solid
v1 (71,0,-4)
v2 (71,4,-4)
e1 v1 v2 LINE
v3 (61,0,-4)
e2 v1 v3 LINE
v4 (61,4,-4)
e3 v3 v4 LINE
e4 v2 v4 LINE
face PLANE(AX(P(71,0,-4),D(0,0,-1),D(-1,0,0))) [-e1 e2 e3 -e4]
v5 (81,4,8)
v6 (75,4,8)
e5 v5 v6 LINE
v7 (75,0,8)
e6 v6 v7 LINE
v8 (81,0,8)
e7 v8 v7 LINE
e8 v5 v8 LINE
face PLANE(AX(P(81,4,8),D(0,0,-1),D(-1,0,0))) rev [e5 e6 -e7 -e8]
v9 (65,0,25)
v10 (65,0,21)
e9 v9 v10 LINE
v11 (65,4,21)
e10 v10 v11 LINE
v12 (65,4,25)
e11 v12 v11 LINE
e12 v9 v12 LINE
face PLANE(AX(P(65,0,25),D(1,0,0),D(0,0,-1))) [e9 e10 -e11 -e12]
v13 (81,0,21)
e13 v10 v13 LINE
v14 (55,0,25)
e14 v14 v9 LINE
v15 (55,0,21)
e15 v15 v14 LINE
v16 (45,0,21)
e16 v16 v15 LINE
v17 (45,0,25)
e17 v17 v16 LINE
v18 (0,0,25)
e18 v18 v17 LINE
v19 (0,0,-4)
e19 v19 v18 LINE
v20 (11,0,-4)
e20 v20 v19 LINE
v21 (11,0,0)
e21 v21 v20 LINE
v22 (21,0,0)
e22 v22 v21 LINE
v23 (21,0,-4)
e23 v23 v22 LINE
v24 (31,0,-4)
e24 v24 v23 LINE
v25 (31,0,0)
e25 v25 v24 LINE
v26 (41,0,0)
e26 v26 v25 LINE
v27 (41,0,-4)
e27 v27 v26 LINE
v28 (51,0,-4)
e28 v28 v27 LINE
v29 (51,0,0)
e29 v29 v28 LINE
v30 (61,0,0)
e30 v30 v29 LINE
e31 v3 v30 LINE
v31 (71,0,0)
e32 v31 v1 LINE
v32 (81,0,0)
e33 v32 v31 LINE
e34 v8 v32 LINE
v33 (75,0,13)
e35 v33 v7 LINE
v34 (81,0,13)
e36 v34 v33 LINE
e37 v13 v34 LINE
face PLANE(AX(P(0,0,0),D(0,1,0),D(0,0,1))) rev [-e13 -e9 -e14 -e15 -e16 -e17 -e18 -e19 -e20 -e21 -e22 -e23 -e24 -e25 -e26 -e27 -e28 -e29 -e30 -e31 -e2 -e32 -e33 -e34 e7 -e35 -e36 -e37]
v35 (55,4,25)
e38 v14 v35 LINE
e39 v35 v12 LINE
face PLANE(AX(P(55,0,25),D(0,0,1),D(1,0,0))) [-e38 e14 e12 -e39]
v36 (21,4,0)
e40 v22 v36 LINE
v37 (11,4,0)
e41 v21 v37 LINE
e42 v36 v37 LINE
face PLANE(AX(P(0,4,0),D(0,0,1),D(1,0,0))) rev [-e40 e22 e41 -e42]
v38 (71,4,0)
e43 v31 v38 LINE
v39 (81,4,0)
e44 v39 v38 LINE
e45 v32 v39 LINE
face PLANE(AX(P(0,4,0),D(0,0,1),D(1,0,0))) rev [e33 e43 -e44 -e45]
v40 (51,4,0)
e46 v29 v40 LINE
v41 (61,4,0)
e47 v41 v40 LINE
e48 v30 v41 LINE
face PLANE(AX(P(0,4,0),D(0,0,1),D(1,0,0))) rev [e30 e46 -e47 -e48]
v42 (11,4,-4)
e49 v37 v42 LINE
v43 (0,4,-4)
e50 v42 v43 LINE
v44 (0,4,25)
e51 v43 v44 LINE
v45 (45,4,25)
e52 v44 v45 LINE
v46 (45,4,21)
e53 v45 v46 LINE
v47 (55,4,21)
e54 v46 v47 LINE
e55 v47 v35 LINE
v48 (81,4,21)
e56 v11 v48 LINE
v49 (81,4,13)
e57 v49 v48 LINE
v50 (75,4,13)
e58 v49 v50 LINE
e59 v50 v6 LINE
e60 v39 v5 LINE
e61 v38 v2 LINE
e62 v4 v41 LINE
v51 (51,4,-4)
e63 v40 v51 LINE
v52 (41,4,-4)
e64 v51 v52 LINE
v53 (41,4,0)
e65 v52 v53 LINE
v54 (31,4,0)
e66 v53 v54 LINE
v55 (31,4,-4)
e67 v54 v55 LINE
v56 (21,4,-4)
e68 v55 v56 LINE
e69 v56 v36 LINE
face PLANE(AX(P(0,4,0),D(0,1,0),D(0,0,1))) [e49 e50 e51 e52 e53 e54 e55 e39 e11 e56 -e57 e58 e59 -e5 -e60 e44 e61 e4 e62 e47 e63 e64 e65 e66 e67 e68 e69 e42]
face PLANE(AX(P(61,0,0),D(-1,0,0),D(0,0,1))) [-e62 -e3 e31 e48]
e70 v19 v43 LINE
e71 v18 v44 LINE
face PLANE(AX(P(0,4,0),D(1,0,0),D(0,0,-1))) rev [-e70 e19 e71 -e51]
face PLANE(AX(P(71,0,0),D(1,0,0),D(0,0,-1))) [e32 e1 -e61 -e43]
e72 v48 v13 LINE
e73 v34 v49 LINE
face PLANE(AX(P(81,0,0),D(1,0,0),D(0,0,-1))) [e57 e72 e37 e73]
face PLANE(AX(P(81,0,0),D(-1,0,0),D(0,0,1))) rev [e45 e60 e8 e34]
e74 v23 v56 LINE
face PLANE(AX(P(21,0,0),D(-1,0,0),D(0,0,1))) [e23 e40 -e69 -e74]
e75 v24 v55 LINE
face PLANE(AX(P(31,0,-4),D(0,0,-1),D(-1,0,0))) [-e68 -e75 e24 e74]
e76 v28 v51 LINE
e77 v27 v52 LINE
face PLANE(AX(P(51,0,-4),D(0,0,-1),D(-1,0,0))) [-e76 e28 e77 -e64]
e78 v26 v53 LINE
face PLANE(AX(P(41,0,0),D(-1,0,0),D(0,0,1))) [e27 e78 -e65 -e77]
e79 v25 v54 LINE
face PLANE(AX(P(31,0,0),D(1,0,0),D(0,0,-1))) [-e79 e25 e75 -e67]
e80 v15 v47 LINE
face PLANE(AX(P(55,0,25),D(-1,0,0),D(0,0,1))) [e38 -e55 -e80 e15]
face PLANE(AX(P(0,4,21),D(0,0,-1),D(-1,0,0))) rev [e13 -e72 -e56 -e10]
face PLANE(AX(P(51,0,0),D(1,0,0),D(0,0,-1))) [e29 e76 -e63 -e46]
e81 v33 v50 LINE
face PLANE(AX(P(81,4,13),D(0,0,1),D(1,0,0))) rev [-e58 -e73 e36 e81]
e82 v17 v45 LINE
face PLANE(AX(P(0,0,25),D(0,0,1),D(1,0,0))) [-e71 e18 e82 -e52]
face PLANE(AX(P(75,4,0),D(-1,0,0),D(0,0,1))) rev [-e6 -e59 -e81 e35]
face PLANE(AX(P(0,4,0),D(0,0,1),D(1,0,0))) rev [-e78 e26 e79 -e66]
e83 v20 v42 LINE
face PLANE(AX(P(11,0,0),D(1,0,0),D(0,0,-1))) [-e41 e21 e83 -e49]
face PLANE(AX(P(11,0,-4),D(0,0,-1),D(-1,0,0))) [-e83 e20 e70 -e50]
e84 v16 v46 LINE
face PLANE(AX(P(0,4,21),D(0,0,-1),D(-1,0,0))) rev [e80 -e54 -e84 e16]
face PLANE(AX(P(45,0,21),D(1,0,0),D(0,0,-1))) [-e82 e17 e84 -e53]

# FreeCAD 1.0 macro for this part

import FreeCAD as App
import Part
import Sketcher
from FreeCAD import Vector
Q = App.Units.Quantity


def add_polygon(sketch, points):
    """Adds a closed chain of lines whose ends are joined by coincident constraints."""
    first, n = sketch.GeometryCount, len(points)
    for a, b in zip(points, points[1:] + points[:1]):
        sketch.addGeometry(Part.LineSegment(App.Vector(*a, 0), App.Vector(*b, 0)), False)
    for i in range(n):
        sketch.addConstraint(Sketcher.Constraint("Coincident", first + i, 2, first + (i + 1) % n, 1))

doc = App.newDocument("Part")
params = doc.addObject("Spreadsheet::Sheet", "Params")
for row, (alias, value) in enumerate([
    ("sketch1_width", "75 mm"),
    ("sketch1_height", "21 mm"),
    ("pad1_length", "4 mm"),
    ("sketch2_width", "4 mm"),
    ("sketch2_height", "8 mm"),
    ("pad2_length", "6 mm"),
    ("sketch3_width", "10 mm"),
    ("sketch3_height", "4 mm"),
    ("pad3_length", "4 mm"),
    ("linearpattern_pitch", "20 mm"),
    ("sketch4_width", "1 mm"),
    ("sketch4_height", "4 mm"),
    ("pad4_length", "4 mm"),
    ("sketch5_width", "45 mm"),
    ("sketch5_width2", "10 mm"),
    ("sketch5_height", "4 mm"),
    ("pad5_length", "4 mm"),
], start=1):
    params.set(f"A{row}", alias)
    params.set(f"B{row}", "=" + value)
    params.setAlias(f"B{row}", alias)

body = doc.addObject("PartDesign::Body", "Body")

# Sketch on XZ plane
sketch1 = body.newObject("Sketcher::SketchObject", "Sketch")
sketch1.AttachmentSupport = (doc.getObject("XZ_Plane"), [""])
sketch1.MapMode = "FlatFace"
add_polygon(sketch1, [(0, 0), (0, 21), (75, 21), (75, 0)])  # lines 0-3
sketch1.addConstraint([
    Sketcher.Constraint("Vertical", 0),
    Sketcher.Constraint("Horizontal", 1),
    Sketcher.Constraint("Vertical", 2),
    Sketcher.Constraint("Horizontal", 3),
    Sketcher.Constraint("Coincident", 3, 2, -1, 1),
    Sketcher.Constraint("DistanceX", 1, 1, 1, 2, Q("75 mm")),
    Sketcher.Constraint("DistanceY", 0, 1, 0, 2, Q("21 mm")),
])
sketch1.setExpression("Constraints[9]", "Params.sketch1_width")
sketch1.setExpression("Constraints[10]", "Params.sketch1_height")
pad1 = body.newObject("PartDesign::Pad", "Pad")
pad1.Profile = sketch1
pad1.setExpression("Length", "Params.pad1_length")
pad1.Reversed = True

# Sketch on YZ plane
sketch2 = body.newObject("Sketcher::SketchObject", "Sketch001")
sketch2.AttachmentSupport = (doc.getObject("YZ_Plane"), [""])
sketch2.MapMode = "FlatFace"
sketch2.AttachmentOffset = App.Placement(Vector(0, 0, 75), App.Rotation())
add_polygon(sketch2, [(4, 21), (0, 21), (0, 13), (4, 13)])  # lines 0-3
add_polygon(sketch2, [(4, 8), (0, 8), (0, 0), (4, 0)])  # lines 4-7
sketch2.addConstraint([
    Sketcher.Constraint("Horizontal", 0),
    Sketcher.Constraint("Vertical", 1),
    Sketcher.Constraint("Horizontal", 2),
    Sketcher.Constraint("Vertical", 3),
    Sketcher.Constraint("Horizontal", 4),
    Sketcher.Constraint("Vertical", 5),
    Sketcher.Constraint("Horizontal", 6),
    Sketcher.Constraint("Vertical", 7),
    Sketcher.Constraint("Coincident", 5, 2, -1, 1),
    Sketcher.Constraint("PointOnObject", 0, 2, -2),
    Sketcher.Constraint("Vertical", 3, 2, 6, 2),
    Sketcher.Constraint("Equal", 3, 5),
    Sketcher.Constraint("DistanceX", 0, 2, 0, 1, Q("4 mm")),
    Sketcher.Constraint("DistanceY", 1, 2, 1, 1, Q("8 mm")),
    Sketcher.Constraint("DistanceY", -1, 1, 0, 2, Q("21 mm")),
])
sketch2.setExpression("Constraints[20]", "Params.sketch2_width")
sketch2.setExpression("Constraints[21]", "Params.sketch2_height")
pad2 = body.newObject("PartDesign::Pad", "Pad001")
pad2.Profile = sketch2
pad2.setExpression("Length", "Params.pad2_length")

# Sketch on XZ plane
sketch3 = body.newObject("Sketcher::SketchObject", "Sketch002")
sketch3.AttachmentSupport = (doc.getObject("XZ_Plane"), [""])
sketch3.MapMode = "FlatFace"
sketch3.AttachmentOffset = App.Placement(Vector(0, 0, -4), App.Rotation())
add_polygon(sketch3, [(61, -4), (61, 0), (71, 0), (71, -4)])  # lines 0-3
sketch3.addConstraint([
    Sketcher.Constraint("Vertical", 0),
    Sketcher.Constraint("Horizontal", 1),
    Sketcher.Constraint("Vertical", 2),
    Sketcher.Constraint("Horizontal", 3),
    Sketcher.Constraint("PointOnObject", 0, 2, -1),
    Sketcher.Constraint("DistanceX", 1, 1, 1, 2, Q("10 mm")),
    Sketcher.Constraint("DistanceY", 0, 1, 0, 2, Q("4 mm")),
    Sketcher.Constraint("DistanceX", -1, 1, 0, 2, Q("61 mm")),
])
sketch3.setExpression("Constraints[9]", "Params.sketch3_width")
sketch3.setExpression("Constraints[10]", "Params.sketch3_height")
pad3 = body.newObject("PartDesign::Pad", "Pad002")
pad3.Profile = sketch3
pad3.setExpression("Length", "Params.pad3_length")
doc.recompute()

linearpattern = body.newObject("PartDesign::LinearPattern", "LinearPattern")
linearpattern.Originals = [pad3]
linearpattern.Direction = (doc.getObject("X_Axis"), [""])
linearpattern.Mode = "offset"
linearpattern.setExpression("Offset", "Params.linearpattern_pitch")
linearpattern.Occurrences = 4
linearpattern.Reversed = True
body.Tip = linearpattern

# Sketch on XZ plane
sketch4 = body.newObject("Sketcher::SketchObject", "Sketch003")
sketch4.AttachmentSupport = (doc.getObject("XZ_Plane"), [""])
sketch4.MapMode = "FlatFace"
sketch4.AttachmentOffset = App.Placement(Vector(0, 0, -4), App.Rotation())
add_polygon(sketch4, [(0, -4), (0, 0), (1, 0), (1, -4)])  # lines 0-3
sketch4.addConstraint([
    Sketcher.Constraint("Vertical", 0),
    Sketcher.Constraint("Horizontal", 1),
    Sketcher.Constraint("Vertical", 2),
    Sketcher.Constraint("Horizontal", 3),
    Sketcher.Constraint("Coincident", 0, 2, -1, 1),
    Sketcher.Constraint("DistanceX", 1, 1, 1, 2, Q("1 mm")),
    Sketcher.Constraint("DistanceY", 0, 1, 0, 2, Q("4 mm")),
])
sketch4.setExpression("Constraints[9]", "Params.sketch4_width")
sketch4.setExpression("Constraints[10]", "Params.sketch4_height")
pad4 = body.newObject("PartDesign::Pad", "Pad003")
pad4.Profile = sketch4
pad4.setExpression("Length", "Params.pad4_length")

# Sketch on XZ plane
sketch5 = body.newObject("Sketcher::SketchObject", "Sketch004")
sketch5.AttachmentSupport = (doc.getObject("XZ_Plane"), [""])
sketch5.MapMode = "FlatFace"
sketch5.AttachmentOffset = App.Placement(Vector(0, 0, -4), App.Rotation())
add_polygon(sketch5, [(0, 21), (0, 25), (45, 25), (45, 21)])  # lines 0-3
add_polygon(sketch5, [(55, 21), (55, 25), (65, 25), (65, 21)])  # lines 4-7
sketch5.addConstraint([
    Sketcher.Constraint("Vertical", 0),
    Sketcher.Constraint("Horizontal", 1),
    Sketcher.Constraint("Vertical", 2),
    Sketcher.Constraint("Horizontal", 3),
    Sketcher.Constraint("Vertical", 4),
    Sketcher.Constraint("Horizontal", 5),
    Sketcher.Constraint("Vertical", 6),
    Sketcher.Constraint("Horizontal", 7),
    Sketcher.Constraint("PointOnObject", 0, 2, -2),
    Sketcher.Constraint("Horizontal", 1, 2, 4, 2),
    Sketcher.Constraint("Horizontal", 3, 2, 6, 2),
    Sketcher.Constraint("DistanceX", 1, 1, 1, 2, Q("45 mm")),
    Sketcher.Constraint("DistanceX", 5, 1, 5, 2, Q("10 mm")),
    Sketcher.Constraint("DistanceY", 0, 1, 0, 2, Q("4 mm")),
    Sketcher.Constraint("DistanceY", -1, 1, 0, 2, Q("25 mm")),
    Sketcher.Constraint("DistanceX", -1, 1, 4, 2, Q("55 mm")),
])
sketch5.setExpression("Constraints[19]", "Params.sketch5_width")
sketch5.setExpression("Constraints[20]", "Params.sketch5_width2")
sketch5.setExpression("Constraints[21]", "Params.sketch5_height")
pad5 = body.newObject("PartDesign::Pad", "Pad004")
pad5.Profile = sketch5
pad5.setExpression("Length", "Params.pad5_length")

doc.recompute()
